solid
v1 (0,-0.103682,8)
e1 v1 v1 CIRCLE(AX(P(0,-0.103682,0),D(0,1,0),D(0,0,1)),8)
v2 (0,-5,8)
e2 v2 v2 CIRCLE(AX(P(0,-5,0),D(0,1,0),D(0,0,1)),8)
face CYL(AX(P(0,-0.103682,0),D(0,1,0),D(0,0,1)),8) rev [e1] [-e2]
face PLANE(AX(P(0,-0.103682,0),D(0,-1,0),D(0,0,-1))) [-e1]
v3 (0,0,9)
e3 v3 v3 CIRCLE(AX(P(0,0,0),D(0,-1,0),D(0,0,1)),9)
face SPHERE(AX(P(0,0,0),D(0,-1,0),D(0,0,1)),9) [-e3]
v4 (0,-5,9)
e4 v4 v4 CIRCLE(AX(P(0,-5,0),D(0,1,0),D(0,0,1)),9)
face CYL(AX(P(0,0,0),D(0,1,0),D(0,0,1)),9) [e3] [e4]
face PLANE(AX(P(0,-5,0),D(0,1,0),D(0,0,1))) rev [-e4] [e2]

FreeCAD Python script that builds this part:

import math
import FreeCAD as App
import Part
import Sketcher

doc = App.newDocument("Part")
body = doc.addObject("PartDesign::Body", "Body")

# Sketch on XZ plane
sketch1 = body.newObject("Sketcher::SketchObject", "Sketch")
sketch1.AttachmentSupport = (doc.getObject("XZ_Plane"), [""])
sketch1.MapMode = "FlatFace"
sketch1.addGeometry(Part.LineSegment(App.Vector(0, -9, 0), App.Vector(0, 9, 0)), False)
sketch1.addGeometry(Part.ArcOfCircle(Part.Circle(App.Vector(0, 0, 0), App.Vector(0, 0, 1), 9), math.radians(-90), math.radians(90)), False)
sketch1.addConstraint(Sketcher.Constraint("Coincident", 0, 1, 1, 1))
sketch1.addConstraint(Sketcher.Constraint("Coincident", 1, 2, 0, 2))
sketch1.addConstraint(Sketcher.Constraint("Vertical", 0))
sketch1.addConstraint(Sketcher.Constraint("Coincident", 1, 3, -1, 1))
sketch1.addConstraint(Sketcher.Constraint("PointOnObject", 0, 1, -2))
sketch1.addConstraint(Sketcher.Constraint("Radius", 1, 9.0))
revolution = body.newObject("PartDesign::Revolution", "Revolution")
revolution.Profile = sketch1
revolution.ReferenceAxis = (sketch1, ["V_Axis"])
revolution.Angle = 180

# Sketch on YZ plane
sketch2 = body.newObject("Sketcher::SketchObject", "Sketch001")
sketch2.AttachmentSupport = (doc.getObject("YZ_Plane"), [""])
sketch2.MapMode = "FlatFace"
sketch2.addGeometry(Part.LineSegment(App.Vector(0, 0, 0), App.Vector(-5, 0, 0)), False)
sketch2.addGeometry(Part.LineSegment(App.Vector(-5, 0, 0), App.Vector(-5, -9, 0)), False)
sketch2.addGeometry(Part.LineSegment(App.Vector(-5, -9, 0), App.Vector(0, -9, 0)), False)
sketch2.addGeometry(Part.LineSegment(App.Vector(0, -9, 0), App.Vector(0, 0, 0)), False)
sketch2.addConstraint(Sketcher.Constraint("Coincident", 0, 2, 1, 1))
sketch2.addConstraint(Sketcher.Constraint("Coincident", 1, 2, 2, 1))
sketch2.addConstraint(Sketcher.Constraint("Coincident", 2, 2, 3, 1))
sketch2.addConstraint(Sketcher.Constraint("Coincident", 3, 2, 0, 1))
sketch2.addConstraint(Sketcher.Constraint("Horizontal", 0))
sketch2.addConstraint(Sketcher.Constraint("Vertical", 1))
sketch2.addConstraint(Sketcher.Constraint("Horizontal", 2))
sketch2.addConstraint(Sketcher.Constraint("Vertical", 3))
sketch2.addConstraint(Sketcher.Constraint("Coincident", 3, 2, -1, 1))
sketch2.addConstraint(Sketcher.Constraint("DistanceX", 0, 2, 0, 1, 5.0))
sketch2.addConstraint(Sketcher.Constraint("DistanceY", 1, 2, 1, 1, 9.0))
revolution2 = body.newObject("PartDesign::Revolution", "Revolution001")
revolution2.Profile = sketch2
revolution2.ReferenceAxis = (sketch2, ["H_Axis"])
revolution2.Angle = 360

# Sketch on YZ plane
sketch3 = body.newObject("Sketcher::SketchObject", "Sketch002")
sketch3.AttachmentSupport = (doc.getObject("YZ_Plane"), [""])
sketch3.MapMode = "FlatFace"
sketch3.addGeometry(Part.LineSegment(App.Vector(-0.1, 0, 0), App.Vector(-5, 0, 0)), False)
sketch3.addGeometry(Part.LineSegment(App.Vector(-5, 0, 0), App.Vector(-5, -8, 0)), False)
sketch3.addGeometry(Part.LineSegment(App.Vector(-5, -8, 0), App.Vector(-0.1, -8, 0)), False)
sketch3.addGeometry(Part.LineSegment(App.Vector(-0.1, -8, 0), App.Vector(-0.1, 0, 0)), False)
sketch3.addConstraint(Sketcher.Constraint("Coincident", 0, 2, 1, 1))
sketch3.addConstraint(Sketcher.Constraint("Coincident", 1, 2, 2, 1))
sketch3.addConstraint(Sketcher.Constraint("Coincident", 2, 2, 3, 1))
sketch3.addConstraint(Sketcher.Constraint("Coincident", 3, 2, 0, 1))
sketch3.addConstraint(Sketcher.Constraint("Horizontal", 0))
sketch3.addConstraint(Sketcher.Constraint("Vertical", 1))
sketch3.addConstraint(Sketcher.Constraint("Horizontal", 2))
sketch3.addConstraint(Sketcher.Constraint("Vertical", 3))
sketch3.addConstraint(Sketcher.Constraint("PointOnObject", 0, 2, -1))
sketch3.addConstraint(Sketcher.Constraint("DistanceY", 1, 2, 1, 1, 8.0))
sketch3.addConstraint(Sketcher.Constraint("DistanceX", 0, 2, -1, 1, 5.0))
sketch3.addConstraint(Sketcher.Constraint("DistanceX", 0, 2, 0, 1, 4.896318))
groove = body.newObject("PartDesign::Groove", "Groove")
groove.Profile = sketch3
groove.ReferenceAxis = (sketch3, ["H_Axis"])
groove.Angle = 360

doc.recompute()
